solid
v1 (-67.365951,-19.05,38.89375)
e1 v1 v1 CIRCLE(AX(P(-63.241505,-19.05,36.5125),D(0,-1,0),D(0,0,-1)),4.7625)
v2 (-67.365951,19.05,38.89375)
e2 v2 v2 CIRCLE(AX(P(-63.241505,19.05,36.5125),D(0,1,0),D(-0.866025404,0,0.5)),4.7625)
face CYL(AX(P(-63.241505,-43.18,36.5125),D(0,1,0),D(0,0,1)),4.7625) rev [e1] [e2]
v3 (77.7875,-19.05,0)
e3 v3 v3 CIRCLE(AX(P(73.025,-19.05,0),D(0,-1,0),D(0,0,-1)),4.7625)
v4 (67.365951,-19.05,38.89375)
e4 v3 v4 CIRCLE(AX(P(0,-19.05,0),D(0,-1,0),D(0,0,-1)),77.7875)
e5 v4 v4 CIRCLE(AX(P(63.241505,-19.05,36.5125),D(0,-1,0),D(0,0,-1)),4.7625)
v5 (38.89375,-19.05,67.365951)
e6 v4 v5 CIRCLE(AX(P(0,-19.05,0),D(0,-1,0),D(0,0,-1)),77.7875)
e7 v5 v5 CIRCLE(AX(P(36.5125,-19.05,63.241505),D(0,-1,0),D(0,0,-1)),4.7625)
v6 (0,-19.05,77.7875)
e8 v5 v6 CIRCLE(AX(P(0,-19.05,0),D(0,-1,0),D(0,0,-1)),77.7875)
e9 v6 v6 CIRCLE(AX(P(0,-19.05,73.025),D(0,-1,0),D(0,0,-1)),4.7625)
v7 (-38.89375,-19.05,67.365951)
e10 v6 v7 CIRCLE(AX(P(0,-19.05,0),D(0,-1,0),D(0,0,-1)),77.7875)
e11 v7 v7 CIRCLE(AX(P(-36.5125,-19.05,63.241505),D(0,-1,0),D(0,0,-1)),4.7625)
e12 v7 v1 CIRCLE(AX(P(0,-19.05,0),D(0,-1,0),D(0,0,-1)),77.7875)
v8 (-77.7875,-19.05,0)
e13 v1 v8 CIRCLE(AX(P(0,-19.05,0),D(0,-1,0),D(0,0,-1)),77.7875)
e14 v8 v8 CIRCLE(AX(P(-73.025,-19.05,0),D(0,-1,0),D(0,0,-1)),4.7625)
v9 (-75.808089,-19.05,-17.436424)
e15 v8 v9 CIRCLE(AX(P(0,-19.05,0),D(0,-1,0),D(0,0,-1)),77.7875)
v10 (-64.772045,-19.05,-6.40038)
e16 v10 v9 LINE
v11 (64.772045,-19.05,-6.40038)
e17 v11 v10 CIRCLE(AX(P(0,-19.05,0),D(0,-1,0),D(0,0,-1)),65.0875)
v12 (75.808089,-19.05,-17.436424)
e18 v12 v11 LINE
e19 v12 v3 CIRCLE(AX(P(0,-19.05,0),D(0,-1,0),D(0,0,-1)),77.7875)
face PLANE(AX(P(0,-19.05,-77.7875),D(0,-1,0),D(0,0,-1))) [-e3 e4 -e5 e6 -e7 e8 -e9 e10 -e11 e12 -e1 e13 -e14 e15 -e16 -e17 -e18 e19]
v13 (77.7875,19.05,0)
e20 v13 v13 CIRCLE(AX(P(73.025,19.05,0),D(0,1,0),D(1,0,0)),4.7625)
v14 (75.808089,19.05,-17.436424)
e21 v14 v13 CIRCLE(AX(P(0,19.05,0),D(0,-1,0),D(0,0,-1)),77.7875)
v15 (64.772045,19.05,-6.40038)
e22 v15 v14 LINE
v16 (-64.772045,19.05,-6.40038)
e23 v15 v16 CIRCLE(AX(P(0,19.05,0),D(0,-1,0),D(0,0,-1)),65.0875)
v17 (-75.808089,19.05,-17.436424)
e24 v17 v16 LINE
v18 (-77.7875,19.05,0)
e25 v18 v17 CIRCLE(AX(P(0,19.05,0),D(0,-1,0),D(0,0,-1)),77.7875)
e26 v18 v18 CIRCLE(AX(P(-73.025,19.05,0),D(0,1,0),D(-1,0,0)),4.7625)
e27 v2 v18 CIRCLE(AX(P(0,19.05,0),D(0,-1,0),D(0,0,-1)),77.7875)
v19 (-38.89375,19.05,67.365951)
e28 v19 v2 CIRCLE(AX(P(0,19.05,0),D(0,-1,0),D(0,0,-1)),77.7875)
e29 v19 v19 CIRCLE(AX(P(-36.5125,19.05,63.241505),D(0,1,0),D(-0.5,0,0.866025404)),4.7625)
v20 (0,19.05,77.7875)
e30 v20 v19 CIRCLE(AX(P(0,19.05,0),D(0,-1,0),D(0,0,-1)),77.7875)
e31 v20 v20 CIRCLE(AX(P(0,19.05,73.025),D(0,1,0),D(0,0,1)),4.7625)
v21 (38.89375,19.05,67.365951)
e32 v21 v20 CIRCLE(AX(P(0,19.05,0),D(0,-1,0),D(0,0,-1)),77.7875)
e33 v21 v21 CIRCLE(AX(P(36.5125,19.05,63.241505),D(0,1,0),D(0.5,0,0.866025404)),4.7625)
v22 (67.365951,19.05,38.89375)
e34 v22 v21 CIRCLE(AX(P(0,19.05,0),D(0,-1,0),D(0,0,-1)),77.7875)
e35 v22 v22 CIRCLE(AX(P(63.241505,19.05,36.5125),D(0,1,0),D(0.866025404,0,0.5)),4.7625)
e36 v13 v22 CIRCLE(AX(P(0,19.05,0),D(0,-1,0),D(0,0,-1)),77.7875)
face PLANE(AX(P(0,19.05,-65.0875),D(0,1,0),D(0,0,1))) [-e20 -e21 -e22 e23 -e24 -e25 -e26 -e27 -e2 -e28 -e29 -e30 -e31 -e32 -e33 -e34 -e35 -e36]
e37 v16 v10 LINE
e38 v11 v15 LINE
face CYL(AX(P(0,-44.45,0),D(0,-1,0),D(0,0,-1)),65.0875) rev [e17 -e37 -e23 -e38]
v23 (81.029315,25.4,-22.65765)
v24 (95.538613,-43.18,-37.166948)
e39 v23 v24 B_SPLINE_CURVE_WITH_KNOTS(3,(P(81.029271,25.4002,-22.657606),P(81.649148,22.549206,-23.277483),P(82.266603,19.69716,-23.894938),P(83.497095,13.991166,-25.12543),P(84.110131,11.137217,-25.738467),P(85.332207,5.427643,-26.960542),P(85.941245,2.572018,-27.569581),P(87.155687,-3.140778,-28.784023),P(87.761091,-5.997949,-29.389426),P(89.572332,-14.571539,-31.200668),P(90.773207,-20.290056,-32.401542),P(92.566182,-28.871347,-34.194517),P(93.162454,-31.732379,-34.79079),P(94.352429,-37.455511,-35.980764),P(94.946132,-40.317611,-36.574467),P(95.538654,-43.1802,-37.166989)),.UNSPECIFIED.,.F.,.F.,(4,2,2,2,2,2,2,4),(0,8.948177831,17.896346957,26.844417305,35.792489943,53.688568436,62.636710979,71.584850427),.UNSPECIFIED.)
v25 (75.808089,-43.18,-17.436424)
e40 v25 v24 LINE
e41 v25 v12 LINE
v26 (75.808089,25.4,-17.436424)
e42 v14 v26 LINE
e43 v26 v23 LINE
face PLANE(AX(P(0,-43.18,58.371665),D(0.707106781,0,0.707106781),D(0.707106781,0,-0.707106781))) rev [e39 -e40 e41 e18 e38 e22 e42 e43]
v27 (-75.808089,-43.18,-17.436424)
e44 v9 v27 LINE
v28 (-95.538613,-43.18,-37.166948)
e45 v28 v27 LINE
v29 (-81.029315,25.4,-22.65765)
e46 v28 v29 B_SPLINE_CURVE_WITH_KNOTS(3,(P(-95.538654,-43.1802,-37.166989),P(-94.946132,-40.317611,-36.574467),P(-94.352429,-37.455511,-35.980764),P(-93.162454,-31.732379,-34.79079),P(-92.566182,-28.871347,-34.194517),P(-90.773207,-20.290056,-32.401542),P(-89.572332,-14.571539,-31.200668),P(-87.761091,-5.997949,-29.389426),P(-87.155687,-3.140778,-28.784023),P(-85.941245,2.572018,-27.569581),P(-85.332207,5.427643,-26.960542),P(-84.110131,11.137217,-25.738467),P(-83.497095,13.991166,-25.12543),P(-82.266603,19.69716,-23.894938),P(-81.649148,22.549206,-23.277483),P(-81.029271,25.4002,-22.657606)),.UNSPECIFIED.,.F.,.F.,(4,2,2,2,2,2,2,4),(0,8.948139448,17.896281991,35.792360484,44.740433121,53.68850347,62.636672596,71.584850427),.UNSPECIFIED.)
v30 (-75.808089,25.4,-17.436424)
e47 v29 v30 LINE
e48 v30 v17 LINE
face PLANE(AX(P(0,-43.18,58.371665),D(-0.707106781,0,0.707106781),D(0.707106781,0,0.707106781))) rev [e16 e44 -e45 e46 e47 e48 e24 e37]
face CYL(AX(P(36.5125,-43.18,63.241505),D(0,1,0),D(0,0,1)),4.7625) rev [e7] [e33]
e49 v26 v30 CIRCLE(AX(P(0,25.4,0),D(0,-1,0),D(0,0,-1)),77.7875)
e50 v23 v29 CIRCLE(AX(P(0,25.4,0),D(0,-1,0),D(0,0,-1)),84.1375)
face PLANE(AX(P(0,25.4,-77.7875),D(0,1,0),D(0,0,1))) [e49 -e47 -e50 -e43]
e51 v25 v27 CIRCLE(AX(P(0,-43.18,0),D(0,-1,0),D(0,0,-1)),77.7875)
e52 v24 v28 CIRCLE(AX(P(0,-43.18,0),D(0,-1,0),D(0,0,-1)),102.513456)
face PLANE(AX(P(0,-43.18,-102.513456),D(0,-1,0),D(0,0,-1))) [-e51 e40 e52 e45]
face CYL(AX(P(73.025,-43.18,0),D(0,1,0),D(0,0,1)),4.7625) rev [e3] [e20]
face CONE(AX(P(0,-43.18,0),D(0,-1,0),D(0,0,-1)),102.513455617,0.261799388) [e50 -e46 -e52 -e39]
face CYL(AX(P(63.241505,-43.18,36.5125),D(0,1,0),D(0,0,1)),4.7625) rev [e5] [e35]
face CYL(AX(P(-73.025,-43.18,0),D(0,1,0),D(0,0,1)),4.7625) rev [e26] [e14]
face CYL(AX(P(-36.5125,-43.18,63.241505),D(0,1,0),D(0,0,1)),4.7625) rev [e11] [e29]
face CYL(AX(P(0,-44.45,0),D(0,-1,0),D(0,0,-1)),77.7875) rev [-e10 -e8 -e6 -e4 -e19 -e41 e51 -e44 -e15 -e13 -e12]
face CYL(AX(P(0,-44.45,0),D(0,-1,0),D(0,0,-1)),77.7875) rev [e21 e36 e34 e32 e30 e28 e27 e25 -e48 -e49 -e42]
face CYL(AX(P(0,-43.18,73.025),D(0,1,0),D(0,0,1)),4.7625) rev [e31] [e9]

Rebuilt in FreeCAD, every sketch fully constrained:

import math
import FreeCAD as App
import Part
import Sketcher

V = App.Vector
Q = App.Units.Quantity


def add_polygon(sketch, points):
    """Adds a closed chain of lines whose ends are joined by coincident constraints."""
    first, n = sketch.GeometryCount, len(points)
    for a, b in zip(points, points[1:] + points[:1]):
        sketch.addGeometry(Part.LineSegment(App.Vector(*a, 0), App.Vector(*b, 0)), False)
    for i in range(n):
        sketch.addConstraint(Sketcher.Constraint("Coincident", first + i, 2, first + (i + 1) % n, 1))

doc = App.newDocument("Part")
body = doc.addObject("PartDesign::Body", "Body")

# Sketch on YZ plane
sketch1 = doc.addObject("Sketcher::SketchObject", "Sketch")
body.addObject(sketch1)
sketch1.AttachmentSupport = (doc.YZ_Plane, [""])
sketch1.MapMode = "FlatFace"
add_polygon(sketch1, [(19, -65), (-19, -65), (-19, -78), (-43, -78), (-43, -103), (25, -84), (25, -78), (19, -78)])  # lines 0-7
sketch1.addConstraint([
    Sketcher.Constraint("Horizontal", 0),
    Sketcher.Constraint("Vertical", 1),
    Sketcher.Constraint("Horizontal", 2),
    Sketcher.Constraint("Vertical", 3),
    Sketcher.Constraint("Vertical", 5),
    Sketcher.Constraint("Horizontal", 6),
    Sketcher.Constraint("Vertical", 7),
    Sketcher.Constraint("Symmetric", 1, 2, 6, 2, -2),
    Sketcher.Constraint("Equal", 6, 5),
    Sketcher.Constraint("DistanceX", 0, 2, 0, 1, Q("1.5 in")),
    Sketcher.Constraint("DistanceY", 1, 2, 1, 1, Q("0.5 in")),
    Sketcher.Constraint("DistanceX", -1, 1, 4, 2, Q("1 in")),
    Sketcher.Constraint("Angle", 4, Q("15 deg")),
    Sketcher.Constraint("DistanceX", 2, 2, 2, 1, Q("0.95 in")),
    Sketcher.Constraint("DistanceY", 0, 2, -1, 1, Q("2.5625 in")),
])
revolution = doc.addObject("PartDesign::Revolution", "Revolution")
body.addObject(revolution)
revolution.Profile = sketch1
revolution.ReferenceAxis = (sketch1, ["H_Axis"])
revolution.Angle = 360

# Sketch on XZ plane
sketch2 = doc.addObject("Sketcher::SketchObject", "Sketch001")
body.addObject(sketch2)
sketch2.AttachmentSupport = (doc.XZ_Plane, [""])
sketch2.MapMode = "FlatFace"
sketch2.AttachmentOffset = App.Placement(V(0, 0, -0.75 * 25.4), App.Rotation())
sketch2.addGeometry(Part.Circle(V(0, 73, 0), V(0, 0, 1), 4.8), False)
sketch2.addConstraint([
    Sketcher.Constraint("PointOnObject", 0, 3, -2),
    Sketcher.Constraint("Diameter", 0, Q("0.375 in")),
    Sketcher.Constraint("DistanceY", -1, 1, 0, 3, Q("2.875 in")),
])
pocket1 = doc.addObject("PartDesign::Pocket", "Pocket")
body.addObject(pocket1)
pocket1.Profile = sketch2
pocket1.Type = "ThroughAll"
pocket1.Reversed = True
doc.recompute()

polarpattern = doc.addObject("PartDesign::PolarPattern", "PolarPattern")
body.addObject(polarpattern)
polarpattern.Originals = [pocket1]
polarpattern.Axis = (doc.Y_Axis, [""])
polarpattern.Angle = 360
polarpattern.Occurrences = 12
body.Tip = polarpattern

# Sketch on XZ plane
sketch3 = doc.addObject("Sketcher::SketchObject", "Sketch002")
body.addObject(sketch3)
sketch3.AttachmentSupport = (doc.XZ_Plane, [""])
sketch3.MapMode = "FlatFace"
sketch3.addGeometry([
    Part.LineSegment(V(0, 58, 0), V(96, -37, 0)),
    Part.ArcOfCircle(Part.Circle(V(0, 0, 0), V(0, 0, 1), 103), math.radians(-159), math.radians(-21)),
    Part.LineSegment(V(-96, -37, 0), V(0, 58, 0)),
], False)
sketch3.addConstraint([
    Sketcher.Constraint("Coincident", 0, 2, 1, 2),
    Sketcher.Constraint("Coincident", 1, 1, 2, 1),
    Sketcher.Constraint("Coincident", 2, 2, 0, 1),
    Sketcher.Constraint("Coincident", 1, 3, -1, 1),
    Sketcher.Constraint("PointOnObject", 2, 2, -2),
    Sketcher.Constraint("Perpendicular", 0, 2),
    Sketcher.Constraint("Horizontal", 0, 2, 1, 1),
    Sketcher.Constraint("Radius", 1, Q("102.513456 mm")),
    Sketcher.Constraint("DistanceY", 0, 2, -1, 1, Q("37.166948 mm")),
])
pocket2 = doc.addObject("PartDesign::Pocket", "Pocket001")
body.addObject(pocket2)
pocket2.Profile = sketch3
pocket2.Type = "ThroughAll"
pocket2.Midplane = True

doc.recompute()
